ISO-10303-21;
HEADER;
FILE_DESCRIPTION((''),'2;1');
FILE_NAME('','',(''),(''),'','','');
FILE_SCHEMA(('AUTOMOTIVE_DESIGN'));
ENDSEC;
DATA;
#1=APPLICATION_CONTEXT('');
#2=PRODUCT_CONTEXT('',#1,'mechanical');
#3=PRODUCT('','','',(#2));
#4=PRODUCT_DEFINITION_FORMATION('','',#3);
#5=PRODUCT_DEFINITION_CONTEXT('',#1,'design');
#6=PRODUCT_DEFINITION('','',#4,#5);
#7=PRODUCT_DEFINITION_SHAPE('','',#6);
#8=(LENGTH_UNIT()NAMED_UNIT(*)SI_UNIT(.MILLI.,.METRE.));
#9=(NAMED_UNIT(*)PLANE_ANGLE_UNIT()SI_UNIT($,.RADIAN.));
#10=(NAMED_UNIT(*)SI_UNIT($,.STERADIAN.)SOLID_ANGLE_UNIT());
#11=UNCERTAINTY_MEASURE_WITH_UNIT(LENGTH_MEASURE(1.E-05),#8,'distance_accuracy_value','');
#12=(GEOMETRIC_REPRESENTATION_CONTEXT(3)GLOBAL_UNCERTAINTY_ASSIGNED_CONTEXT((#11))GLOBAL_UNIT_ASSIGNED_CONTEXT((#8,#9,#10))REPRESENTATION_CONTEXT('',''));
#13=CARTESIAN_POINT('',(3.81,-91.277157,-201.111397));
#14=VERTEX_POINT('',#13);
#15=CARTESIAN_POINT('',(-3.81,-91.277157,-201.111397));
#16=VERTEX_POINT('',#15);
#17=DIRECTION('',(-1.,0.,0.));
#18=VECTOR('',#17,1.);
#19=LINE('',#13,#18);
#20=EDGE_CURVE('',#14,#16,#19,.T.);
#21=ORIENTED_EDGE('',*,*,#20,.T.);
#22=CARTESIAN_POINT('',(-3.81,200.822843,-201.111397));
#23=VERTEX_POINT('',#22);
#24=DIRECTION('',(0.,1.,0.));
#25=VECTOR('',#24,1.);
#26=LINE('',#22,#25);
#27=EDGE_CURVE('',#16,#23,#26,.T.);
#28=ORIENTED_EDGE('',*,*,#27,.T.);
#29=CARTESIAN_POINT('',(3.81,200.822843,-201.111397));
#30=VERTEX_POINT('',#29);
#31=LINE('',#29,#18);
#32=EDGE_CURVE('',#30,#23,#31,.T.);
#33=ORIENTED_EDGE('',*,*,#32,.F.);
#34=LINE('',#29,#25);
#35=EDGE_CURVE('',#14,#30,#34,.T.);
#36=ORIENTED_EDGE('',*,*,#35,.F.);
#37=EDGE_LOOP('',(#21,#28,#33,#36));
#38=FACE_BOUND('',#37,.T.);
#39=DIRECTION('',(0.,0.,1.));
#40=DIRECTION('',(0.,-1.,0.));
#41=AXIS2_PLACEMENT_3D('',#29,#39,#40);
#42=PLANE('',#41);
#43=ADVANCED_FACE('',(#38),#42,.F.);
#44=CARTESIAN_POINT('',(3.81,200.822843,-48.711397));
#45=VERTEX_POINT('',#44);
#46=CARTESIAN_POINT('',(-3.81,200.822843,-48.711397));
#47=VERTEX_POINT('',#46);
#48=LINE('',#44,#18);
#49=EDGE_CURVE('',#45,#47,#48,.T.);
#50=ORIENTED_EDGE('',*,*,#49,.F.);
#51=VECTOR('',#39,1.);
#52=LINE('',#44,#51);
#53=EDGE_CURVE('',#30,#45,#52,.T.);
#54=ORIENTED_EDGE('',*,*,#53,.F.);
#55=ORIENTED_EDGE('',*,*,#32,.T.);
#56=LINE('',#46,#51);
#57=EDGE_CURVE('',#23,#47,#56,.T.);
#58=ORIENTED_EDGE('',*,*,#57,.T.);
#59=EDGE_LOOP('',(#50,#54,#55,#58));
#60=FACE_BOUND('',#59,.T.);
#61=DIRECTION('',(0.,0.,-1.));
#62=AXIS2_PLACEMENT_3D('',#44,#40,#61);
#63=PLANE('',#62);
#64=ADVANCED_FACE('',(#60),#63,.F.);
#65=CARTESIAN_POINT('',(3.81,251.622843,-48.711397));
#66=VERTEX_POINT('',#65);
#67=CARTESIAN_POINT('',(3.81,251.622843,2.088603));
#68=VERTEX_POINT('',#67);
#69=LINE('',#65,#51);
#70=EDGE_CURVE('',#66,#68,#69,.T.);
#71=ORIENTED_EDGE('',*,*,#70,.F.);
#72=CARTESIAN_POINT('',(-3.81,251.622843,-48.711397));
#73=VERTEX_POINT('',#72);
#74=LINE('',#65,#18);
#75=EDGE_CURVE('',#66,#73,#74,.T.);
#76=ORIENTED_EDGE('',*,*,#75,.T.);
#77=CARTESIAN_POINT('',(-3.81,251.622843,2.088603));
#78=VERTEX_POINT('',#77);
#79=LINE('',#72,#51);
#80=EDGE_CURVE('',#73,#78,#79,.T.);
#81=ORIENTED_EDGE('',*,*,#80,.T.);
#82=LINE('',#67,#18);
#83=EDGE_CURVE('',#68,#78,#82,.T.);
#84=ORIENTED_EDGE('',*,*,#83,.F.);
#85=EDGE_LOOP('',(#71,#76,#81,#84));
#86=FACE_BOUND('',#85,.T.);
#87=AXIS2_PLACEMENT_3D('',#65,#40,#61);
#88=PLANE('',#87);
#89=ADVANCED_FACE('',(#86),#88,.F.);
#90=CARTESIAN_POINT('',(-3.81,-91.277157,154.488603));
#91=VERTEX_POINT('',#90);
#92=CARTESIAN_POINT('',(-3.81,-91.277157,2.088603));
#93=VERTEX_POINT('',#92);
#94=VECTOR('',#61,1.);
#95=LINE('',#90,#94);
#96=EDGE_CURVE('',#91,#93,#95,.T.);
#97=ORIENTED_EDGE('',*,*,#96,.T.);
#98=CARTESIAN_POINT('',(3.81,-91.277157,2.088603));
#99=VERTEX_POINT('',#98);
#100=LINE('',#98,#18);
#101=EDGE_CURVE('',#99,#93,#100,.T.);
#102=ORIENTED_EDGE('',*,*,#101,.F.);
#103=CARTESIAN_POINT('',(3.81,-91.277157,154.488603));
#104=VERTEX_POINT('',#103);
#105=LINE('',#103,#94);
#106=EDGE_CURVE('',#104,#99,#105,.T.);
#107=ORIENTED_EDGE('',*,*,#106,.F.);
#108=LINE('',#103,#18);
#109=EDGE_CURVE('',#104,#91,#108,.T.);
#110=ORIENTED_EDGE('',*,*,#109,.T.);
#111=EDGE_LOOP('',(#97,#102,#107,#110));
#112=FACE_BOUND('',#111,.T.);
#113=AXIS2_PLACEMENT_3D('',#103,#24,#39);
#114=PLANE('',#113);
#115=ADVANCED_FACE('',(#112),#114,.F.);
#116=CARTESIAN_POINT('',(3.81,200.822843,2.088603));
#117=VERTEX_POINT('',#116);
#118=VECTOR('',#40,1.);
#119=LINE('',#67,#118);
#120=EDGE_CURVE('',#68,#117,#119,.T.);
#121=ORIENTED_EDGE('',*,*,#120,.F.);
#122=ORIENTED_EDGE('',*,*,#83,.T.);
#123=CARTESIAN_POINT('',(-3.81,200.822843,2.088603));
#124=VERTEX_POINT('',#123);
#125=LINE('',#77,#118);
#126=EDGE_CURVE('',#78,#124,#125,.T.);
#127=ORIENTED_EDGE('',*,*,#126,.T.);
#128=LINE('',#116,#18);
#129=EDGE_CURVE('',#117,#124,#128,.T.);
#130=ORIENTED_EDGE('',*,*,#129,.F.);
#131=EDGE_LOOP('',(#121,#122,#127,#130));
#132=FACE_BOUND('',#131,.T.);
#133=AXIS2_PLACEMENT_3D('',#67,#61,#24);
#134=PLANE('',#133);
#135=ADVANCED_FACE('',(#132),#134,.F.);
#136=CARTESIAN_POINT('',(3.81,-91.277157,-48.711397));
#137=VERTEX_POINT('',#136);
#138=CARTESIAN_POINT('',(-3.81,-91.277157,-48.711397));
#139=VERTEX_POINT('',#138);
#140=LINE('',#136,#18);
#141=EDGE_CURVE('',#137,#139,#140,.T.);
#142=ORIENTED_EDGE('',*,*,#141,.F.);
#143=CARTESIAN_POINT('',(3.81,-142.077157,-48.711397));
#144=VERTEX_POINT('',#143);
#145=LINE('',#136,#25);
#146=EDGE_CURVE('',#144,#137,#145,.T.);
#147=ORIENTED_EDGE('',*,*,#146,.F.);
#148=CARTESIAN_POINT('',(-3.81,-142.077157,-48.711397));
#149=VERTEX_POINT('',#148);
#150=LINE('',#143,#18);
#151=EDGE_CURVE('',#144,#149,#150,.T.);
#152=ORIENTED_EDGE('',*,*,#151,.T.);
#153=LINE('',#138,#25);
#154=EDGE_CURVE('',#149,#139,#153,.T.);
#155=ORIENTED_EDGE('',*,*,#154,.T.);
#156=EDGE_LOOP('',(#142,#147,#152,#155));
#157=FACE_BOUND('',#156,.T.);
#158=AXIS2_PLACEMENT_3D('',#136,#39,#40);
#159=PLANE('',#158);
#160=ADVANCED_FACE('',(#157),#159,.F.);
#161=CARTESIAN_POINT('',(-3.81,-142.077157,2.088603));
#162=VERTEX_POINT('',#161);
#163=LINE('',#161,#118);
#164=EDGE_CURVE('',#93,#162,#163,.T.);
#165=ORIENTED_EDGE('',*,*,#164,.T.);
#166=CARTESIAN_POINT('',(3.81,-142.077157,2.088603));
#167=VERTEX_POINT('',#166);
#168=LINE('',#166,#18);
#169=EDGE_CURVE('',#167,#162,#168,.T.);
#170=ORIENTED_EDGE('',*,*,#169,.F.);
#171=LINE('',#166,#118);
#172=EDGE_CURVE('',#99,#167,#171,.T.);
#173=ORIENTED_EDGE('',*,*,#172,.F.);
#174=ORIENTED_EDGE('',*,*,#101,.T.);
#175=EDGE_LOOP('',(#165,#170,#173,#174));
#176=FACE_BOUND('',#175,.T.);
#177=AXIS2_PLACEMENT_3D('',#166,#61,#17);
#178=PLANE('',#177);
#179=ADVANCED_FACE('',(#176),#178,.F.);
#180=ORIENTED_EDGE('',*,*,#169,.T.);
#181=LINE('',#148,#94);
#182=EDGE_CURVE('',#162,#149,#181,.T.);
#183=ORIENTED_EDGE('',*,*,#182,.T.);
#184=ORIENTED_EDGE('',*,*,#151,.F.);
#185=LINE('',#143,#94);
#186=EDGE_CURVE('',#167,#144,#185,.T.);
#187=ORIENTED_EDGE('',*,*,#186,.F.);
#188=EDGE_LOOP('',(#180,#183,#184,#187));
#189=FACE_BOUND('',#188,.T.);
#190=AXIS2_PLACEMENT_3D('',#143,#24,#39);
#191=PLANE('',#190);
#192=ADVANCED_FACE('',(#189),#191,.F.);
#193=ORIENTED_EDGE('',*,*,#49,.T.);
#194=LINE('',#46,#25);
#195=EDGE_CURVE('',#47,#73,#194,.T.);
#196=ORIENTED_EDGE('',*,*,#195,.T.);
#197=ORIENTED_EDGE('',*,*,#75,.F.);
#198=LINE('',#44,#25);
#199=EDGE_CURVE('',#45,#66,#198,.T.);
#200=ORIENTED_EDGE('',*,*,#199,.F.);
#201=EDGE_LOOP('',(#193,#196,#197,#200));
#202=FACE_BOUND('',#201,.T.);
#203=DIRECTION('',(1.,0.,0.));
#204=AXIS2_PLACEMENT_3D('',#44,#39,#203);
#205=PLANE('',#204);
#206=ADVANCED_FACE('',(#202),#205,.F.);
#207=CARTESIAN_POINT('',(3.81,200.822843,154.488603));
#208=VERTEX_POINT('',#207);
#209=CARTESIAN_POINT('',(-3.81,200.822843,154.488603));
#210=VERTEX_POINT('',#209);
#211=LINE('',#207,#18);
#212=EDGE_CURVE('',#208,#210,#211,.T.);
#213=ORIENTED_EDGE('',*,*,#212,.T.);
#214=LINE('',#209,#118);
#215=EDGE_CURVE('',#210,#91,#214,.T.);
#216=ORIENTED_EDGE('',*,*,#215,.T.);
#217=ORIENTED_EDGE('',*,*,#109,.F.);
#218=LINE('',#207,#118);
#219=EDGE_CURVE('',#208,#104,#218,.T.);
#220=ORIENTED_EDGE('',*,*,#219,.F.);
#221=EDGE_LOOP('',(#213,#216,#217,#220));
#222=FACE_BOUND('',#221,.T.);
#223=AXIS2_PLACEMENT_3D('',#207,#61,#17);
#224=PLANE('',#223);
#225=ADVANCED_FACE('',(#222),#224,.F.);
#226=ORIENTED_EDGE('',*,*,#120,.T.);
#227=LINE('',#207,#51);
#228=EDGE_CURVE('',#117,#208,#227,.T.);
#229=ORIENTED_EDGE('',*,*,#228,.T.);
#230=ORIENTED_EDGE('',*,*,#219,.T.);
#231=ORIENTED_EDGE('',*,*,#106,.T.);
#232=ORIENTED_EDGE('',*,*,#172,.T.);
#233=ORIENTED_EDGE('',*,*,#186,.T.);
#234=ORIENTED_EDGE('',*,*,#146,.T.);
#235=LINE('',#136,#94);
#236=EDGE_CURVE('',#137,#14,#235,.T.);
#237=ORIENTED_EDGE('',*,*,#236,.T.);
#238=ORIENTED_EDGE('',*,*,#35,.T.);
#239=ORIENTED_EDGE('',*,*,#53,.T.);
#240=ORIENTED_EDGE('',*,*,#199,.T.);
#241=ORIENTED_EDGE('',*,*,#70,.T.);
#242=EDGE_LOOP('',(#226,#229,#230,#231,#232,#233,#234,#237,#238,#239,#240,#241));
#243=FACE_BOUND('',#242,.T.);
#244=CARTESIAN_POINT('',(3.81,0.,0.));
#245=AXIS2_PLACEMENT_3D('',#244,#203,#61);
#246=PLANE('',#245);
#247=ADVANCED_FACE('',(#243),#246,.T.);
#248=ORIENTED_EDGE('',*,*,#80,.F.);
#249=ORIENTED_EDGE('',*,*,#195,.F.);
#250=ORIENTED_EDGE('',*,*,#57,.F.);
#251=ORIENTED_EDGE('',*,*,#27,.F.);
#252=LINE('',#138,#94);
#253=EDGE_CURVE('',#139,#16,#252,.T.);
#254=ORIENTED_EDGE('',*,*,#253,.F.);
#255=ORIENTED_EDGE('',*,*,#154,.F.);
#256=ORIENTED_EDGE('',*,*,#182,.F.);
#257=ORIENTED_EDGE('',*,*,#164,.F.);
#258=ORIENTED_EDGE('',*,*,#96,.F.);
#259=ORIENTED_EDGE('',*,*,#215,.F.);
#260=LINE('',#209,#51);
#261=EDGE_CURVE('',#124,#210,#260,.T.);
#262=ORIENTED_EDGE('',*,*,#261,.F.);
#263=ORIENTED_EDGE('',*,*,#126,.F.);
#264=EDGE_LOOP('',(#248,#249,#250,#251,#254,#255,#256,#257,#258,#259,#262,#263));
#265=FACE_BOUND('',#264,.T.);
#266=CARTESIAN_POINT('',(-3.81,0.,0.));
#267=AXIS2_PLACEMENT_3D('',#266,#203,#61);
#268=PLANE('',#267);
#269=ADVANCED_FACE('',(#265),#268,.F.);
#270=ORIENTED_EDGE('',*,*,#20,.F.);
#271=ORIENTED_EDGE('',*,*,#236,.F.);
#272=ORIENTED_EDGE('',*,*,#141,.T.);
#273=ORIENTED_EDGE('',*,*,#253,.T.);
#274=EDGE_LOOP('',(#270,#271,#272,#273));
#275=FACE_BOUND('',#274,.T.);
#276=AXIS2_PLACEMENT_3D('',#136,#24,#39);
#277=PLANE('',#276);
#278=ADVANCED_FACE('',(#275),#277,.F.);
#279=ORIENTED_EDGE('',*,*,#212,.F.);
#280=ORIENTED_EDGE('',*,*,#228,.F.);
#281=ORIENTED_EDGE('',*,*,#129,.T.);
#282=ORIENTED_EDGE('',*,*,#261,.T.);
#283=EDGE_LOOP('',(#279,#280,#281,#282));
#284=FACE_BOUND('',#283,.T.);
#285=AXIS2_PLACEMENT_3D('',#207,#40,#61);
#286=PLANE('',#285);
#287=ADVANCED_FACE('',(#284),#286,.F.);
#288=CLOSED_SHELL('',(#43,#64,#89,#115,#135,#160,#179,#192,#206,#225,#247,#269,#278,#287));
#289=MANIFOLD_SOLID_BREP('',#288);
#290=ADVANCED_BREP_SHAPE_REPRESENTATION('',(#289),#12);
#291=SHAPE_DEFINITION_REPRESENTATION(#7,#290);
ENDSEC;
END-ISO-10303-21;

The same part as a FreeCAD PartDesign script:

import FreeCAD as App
import Part
import Sketcher
Q = App.Units.Quantity

doc = App.newDocument("Part")
body = doc.addObject("PartDesign::Body", "Body")

# Sketch on YZ plane
sketch1 = body.newObject("Sketcher::SketchObject", "Sketch")
sketch1.AttachmentSupport = (doc.getObject("YZ_Plane"), [""])
sketch1.MapMode = "FlatFace"
sketch1.addGeometry([
    Part.LineSegment(App.Vector(201, -201, 0), App.Vector(201, -49, 0)),  # 0
    Part.LineSegment(App.Vector(201, -49, 0), App.Vector(252, -49, 0)),  # 1
    Part.LineSegment(App.Vector(252, -49, 0), App.Vector(252, 2, 0)),  # 2
    Part.LineSegment(App.Vector(252, 2, 0), App.Vector(201, 2, 0)),  # 3
    Part.LineSegment(App.Vector(201, 2, 0), App.Vector(201, 154, 0)),  # 4
    Part.LineSegment(App.Vector(201, 154, 0), App.Vector(-91, 154, 0)),  # 5
    Part.LineSegment(App.Vector(-91, 154, 0), App.Vector(-91, 2, 0)),  # 6
    Part.LineSegment(App.Vector(-91, 2, 0), App.Vector(-142, 2, 0)),  # 7
    Part.LineSegment(App.Vector(-142, 2, 0), App.Vector(-142, -49, 0)),  # 8
    Part.LineSegment(App.Vector(-142, -49, 0), App.Vector(-91, -49, 0)),  # 9
    Part.LineSegment(App.Vector(-91, -49, 0), App.Vector(-91, -201, 0)),  # 10
    Part.LineSegment(App.Vector(-91, -201, 0), App.Vector(201, -201, 0)),  # 11
], False)
sketch1.addConstraint([
    Sketcher.Constraint("Coincident", 0, 2, 1, 1),
    Sketcher.Constraint("Coincident", 1, 2, 2, 1),
    Sketcher.Constraint("Coincident", 2, 2, 3, 1),
    Sketcher.Constraint("Coincident", 3, 2, 4, 1),
    Sketcher.Constraint("Coincident", 4, 2, 5, 1),
    Sketcher.Constraint("Coincident", 5, 2, 6, 1),
    Sketcher.Constraint("Coincident", 6, 2, 7, 1),
    Sketcher.Constraint("Coincident", 7, 2, 8, 1),
    Sketcher.Constraint("Coincident", 8, 2, 9, 1),
    Sketcher.Constraint("Coincident", 9, 2, 10, 1),
    Sketcher.Constraint("Coincident", 10, 2, 11, 1),
    Sketcher.Constraint("Coincident", 11, 2, 0, 1),
    Sketcher.Constraint("Vertical", 0),
    Sketcher.Constraint("Horizontal", 1),
    Sketcher.Constraint("Vertical", 2),
    Sketcher.Constraint("Horizontal", 3),
    Sketcher.Constraint("Vertical", 4),
    Sketcher.Constraint("Horizontal", 5),
    Sketcher.Constraint("Vertical", 6),
    Sketcher.Constraint("Horizontal", 7),
    Sketcher.Constraint("Vertical", 8),
    Sketcher.Constraint("Horizontal", 9),
    Sketcher.Constraint("Vertical", 10),
    Sketcher.Constraint("Horizontal", 11),
    Sketcher.Constraint("Horizontal", 3, 2, 6, 2),
    Sketcher.Constraint("Horizontal", 1, 2, 8, 2),
    Sketcher.Constraint("Vertical", 0, 2, 3, 2),
    Sketcher.Constraint("Vertical", 6, 2, 9, 2),
    Sketcher.Constraint("Equal", 3, 7),
    Sketcher.Constraint("Equal", 9, 2),
    Sketcher.Constraint("Equal", 0, 4),
    Sketcher.Constraint("DistanceX", 1, 1, 1, 2, Q("2 in")),
    Sketcher.Constraint("DistanceY", 0, 1, 0, 2, Q("6 in")),
    Sketcher.Constraint("DistanceX", 5, 2, 5, 1, Q("11.5 in")),
    Sketcher.Constraint("DistanceX", -1, 1, 0, 2, Q("200.822843 mm")),
    Sketcher.Constraint("DistanceY", 0, 2, -1, 1, Q("48.711397 mm")),
])
pad1 = body.newObject("PartDesign::Pad", "Pad")
pad1.Profile = sketch1
pad1.Length = Q("0.3 in")
pad1.Midplane = True

doc.recompute()
